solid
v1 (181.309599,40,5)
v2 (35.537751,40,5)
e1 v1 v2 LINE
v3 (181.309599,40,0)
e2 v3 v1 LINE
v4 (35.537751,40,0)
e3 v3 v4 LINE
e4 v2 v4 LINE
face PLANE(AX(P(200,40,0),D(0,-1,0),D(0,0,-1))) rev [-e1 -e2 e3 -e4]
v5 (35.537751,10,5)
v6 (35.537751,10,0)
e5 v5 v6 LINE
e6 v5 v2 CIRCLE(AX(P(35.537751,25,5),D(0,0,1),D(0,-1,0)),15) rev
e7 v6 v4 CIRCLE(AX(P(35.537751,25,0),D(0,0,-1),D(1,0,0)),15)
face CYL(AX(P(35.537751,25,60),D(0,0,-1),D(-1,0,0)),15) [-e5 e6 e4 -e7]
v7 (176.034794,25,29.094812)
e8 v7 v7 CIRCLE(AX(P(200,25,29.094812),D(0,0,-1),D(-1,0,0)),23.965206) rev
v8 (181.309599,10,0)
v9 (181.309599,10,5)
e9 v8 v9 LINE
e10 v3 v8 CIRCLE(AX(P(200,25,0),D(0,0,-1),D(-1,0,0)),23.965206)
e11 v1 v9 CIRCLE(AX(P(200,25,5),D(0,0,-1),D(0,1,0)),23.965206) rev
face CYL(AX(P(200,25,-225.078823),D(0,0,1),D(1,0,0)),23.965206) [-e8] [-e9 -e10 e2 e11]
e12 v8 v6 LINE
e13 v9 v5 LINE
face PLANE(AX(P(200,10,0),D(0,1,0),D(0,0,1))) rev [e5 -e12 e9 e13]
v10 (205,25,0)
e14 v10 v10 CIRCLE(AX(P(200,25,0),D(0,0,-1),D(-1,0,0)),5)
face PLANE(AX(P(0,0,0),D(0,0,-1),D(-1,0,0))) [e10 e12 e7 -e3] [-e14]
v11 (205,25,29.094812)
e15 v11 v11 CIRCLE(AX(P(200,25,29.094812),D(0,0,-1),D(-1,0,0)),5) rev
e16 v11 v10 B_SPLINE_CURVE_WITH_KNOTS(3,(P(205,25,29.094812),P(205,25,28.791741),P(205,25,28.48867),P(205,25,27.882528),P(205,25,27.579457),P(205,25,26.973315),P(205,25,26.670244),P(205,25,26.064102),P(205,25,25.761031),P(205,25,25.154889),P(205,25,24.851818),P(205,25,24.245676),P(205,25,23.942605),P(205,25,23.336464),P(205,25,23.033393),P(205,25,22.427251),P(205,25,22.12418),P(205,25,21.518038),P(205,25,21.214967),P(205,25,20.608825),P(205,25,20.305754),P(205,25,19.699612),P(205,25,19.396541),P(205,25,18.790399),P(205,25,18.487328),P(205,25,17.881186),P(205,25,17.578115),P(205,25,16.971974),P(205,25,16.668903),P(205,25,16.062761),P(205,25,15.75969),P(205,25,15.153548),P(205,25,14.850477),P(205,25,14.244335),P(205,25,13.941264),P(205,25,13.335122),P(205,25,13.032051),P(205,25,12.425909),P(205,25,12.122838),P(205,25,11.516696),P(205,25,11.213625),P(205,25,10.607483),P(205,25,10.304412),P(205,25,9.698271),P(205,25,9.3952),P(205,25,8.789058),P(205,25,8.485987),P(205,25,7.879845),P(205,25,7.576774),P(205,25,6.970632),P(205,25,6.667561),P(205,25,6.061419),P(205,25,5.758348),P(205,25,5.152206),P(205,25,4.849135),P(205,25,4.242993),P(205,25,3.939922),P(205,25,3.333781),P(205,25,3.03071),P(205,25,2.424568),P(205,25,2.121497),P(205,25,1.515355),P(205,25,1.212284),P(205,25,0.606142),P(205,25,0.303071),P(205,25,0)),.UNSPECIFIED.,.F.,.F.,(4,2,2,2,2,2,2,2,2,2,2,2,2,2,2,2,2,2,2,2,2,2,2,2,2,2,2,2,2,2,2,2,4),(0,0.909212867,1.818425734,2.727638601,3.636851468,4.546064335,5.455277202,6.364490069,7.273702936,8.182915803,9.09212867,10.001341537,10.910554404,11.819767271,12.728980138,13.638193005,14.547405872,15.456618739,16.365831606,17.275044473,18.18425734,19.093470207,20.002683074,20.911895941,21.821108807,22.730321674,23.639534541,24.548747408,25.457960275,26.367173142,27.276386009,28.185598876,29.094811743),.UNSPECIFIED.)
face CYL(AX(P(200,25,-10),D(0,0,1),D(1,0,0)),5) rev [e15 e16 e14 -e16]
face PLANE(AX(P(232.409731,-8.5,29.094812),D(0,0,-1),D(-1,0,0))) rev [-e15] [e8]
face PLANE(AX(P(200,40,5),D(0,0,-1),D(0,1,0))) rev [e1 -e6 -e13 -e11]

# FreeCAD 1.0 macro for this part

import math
import FreeCAD as App
import Part
import Sketcher

V = App.Vector

doc = App.newDocument("Part")
body = doc.addObject("PartDesign::Body", "Body")

# Sketch on XY plane
sketch1 = body.newObject("Sketcher::SketchObject", "Sketch")
sketch1.AttachmentSupport = (doc.getObject("XY_Plane"), [""])
sketch1.MapMode = "FlatFace"
sketch1.addGeometry([
    Part.LineSegment(V(0, 50, 0), V(0, 0, 0)),
    Part.LineSegment(V(0, 0, 0), V(50, 0, 0)),
    Part.LineSegment(V(50, 0, 0), V(50, 50, 0)),
    Part.LineSegment(V(50, 50, 0), V(0, 50, 0)),
], False)
sketch1.addConstraint([
    Sketcher.Constraint("Coincident", 0, 2, 1, 1),
    Sketcher.Constraint("Coincident", 1, 2, 2, 1),
    Sketcher.Constraint("Coincident", 2, 2, 3, 1),
    Sketcher.Constraint("Coincident", 3, 2, 0, 1),
    Sketcher.Constraint("Vertical", 0),
    Sketcher.Constraint("Horizontal", 1),
    Sketcher.Constraint("Vertical", 2),
    Sketcher.Constraint("Horizontal", 3),
    Sketcher.Constraint("Coincident", 0, 2, -1, 1),
    Sketcher.Constraint("Equal", 3, 0),
    Sketcher.Constraint("DistanceX", 1, 1, 1, 2, 50.0),
])
pad1 = body.newObject("PartDesign::Pad", "Pad")
pad1.Profile = sketch1
pad1.Length = 50

# Sketch on XY plane
sketch2 = body.newObject("Sketcher::SketchObject", "Sketch001")
sketch2.AttachmentSupport = (doc.getObject("XY_Plane"), [""])
sketch2.MapMode = "FlatFace"
sketch2.AttachmentOffset = App.Placement(V(0, 0, 50), App.Rotation())
sketch2.addGeometry([
    Part.LineSegment(V(0, 40, 0), V(0, 10, 0)),
    Part.LineSegment(V(0, 10, 0), V(50, 10, 0)),
    Part.LineSegment(V(50, 10, 0), V(50, 40, 0)),
    Part.LineSegment(V(50, 40, 0), V(0, 40, 0)),
], False)
sketch2.addConstraint([
    Sketcher.Constraint("Coincident", 0, 2, 1, 1),
    Sketcher.Constraint("Coincident", 1, 2, 2, 1),
    Sketcher.Constraint("Coincident", 2, 2, 3, 1),
    Sketcher.Constraint("Coincident", 3, 2, 0, 1),
    Sketcher.Constraint("Vertical", 0),
    Sketcher.Constraint("Horizontal", 1),
    Sketcher.Constraint("Vertical", 2),
    Sketcher.Constraint("Horizontal", 3),
    Sketcher.Constraint("PointOnObject", 0, 2, -2),
    Sketcher.Constraint("DistanceX", 1, 1, 1, 2, 50.0),
    Sketcher.Constraint("DistanceY", 0, 2, 0, 1, 30.0),
    Sketcher.Constraint("DistanceY", -1, 1, 0, 2, 10.0),
])
pocket1 = body.newObject("PartDesign::Pocket", "Pocket")
pocket1.Profile = sketch2
pocket1.Length = 5

# Sketch on YZ plane
sketch3 = body.newObject("Sketcher::SketchObject", "Sketch002")
sketch3.AttachmentSupport = (doc.getObject("YZ_Plane"), [""])
sketch3.MapMode = "FlatFace"
sketch3.AttachmentOffset = App.Placement(V(0, 0, 50), App.Rotation())
sketch3.addGeometry([
    Part.LineSegment(V(40, 5, 0), V(10, 5, 0)),
    Part.LineSegment(V(10, 5, 0), V(10, 0, 0)),
    Part.LineSegment(V(10, 0, 0), V(40, 0, 0)),
    Part.LineSegment(V(40, 0, 0), V(40, 5, 0)),
], False)
sketch3.addConstraint([
    Sketcher.Constraint("Coincident", 0, 2, 1, 1),
    Sketcher.Constraint("Coincident", 1, 2, 2, 1),
    Sketcher.Constraint("Coincident", 2, 2, 3, 1),
    Sketcher.Constraint("Coincident", 3, 2, 0, 1),
    Sketcher.Constraint("Horizontal", 0),
    Sketcher.Constraint("Vertical", 1),
    Sketcher.Constraint("Horizontal", 2),
    Sketcher.Constraint("Vertical", 3),
    Sketcher.Constraint("PointOnObject", 1, 2, -1),
    Sketcher.Constraint("DistanceX", 0, 2, 0, 1, 30.0),
    Sketcher.Constraint("DistanceY", 1, 2, 1, 1, 5.0),
    Sketcher.Constraint("DistanceX", -1, 1, 0, 2, 10.0),
])
pad2 = body.newObject("PartDesign::Pad", "Pad001")
pad2.Profile = sketch3
pad2.Length = 150

# Sketch on XY plane
sketch4 = body.newObject("Sketcher::SketchObject", "Sketch003")
sketch4.AttachmentSupport = (doc.getObject("XY_Plane"), [""])
sketch4.MapMode = "FlatFace"
sketch4.addGeometry(Part.Circle(V(200, 25, 0), V(0, 0, 1), 35), False)
sketch4.addConstraint([
    Sketcher.Constraint("Diameter", 0, 70.0),
    Sketcher.Constraint("DistanceX", -1, 1, 0, 3, 200.0),
    Sketcher.Constraint("DistanceY", -1, 1, 0, 3, 25.0),
])
pad3 = body.newObject("PartDesign::Pad", "Pad002")
pad3.Profile = sketch4
pad3.Length = 50

# Sketch on XY plane
sketch5 = body.newObject("Sketcher::SketchObject", "Sketch004")
sketch5.AttachmentSupport = (doc.getObject("XY_Plane"), [""])
sketch5.MapMode = "FlatFace"
sketch5.addGeometry([
    Part.LineSegment(V(261, 86, 0), V(261, -36, 0)),  # 0
    Part.LineSegment(V(261, -36, 0), V(-26, -36, 0)),  # 1
    Part.LineSegment(V(-26, -36, 0), V(-26, 86, 0)),  # 2
    Part.LineSegment(V(-26, 86, 0), V(261, 86, 0)),  # 3
    Part.LineSegment(V(247, 86, 0), V(50, 40, 0)),  # 4
    Part.LineSegment(V(50, 40, 0), V(36, 40, 0)),  # 5
    Part.ArcOfCircle(Part.Circle(V(36, 25, 0), V(0, 0, 1), 15), math.radians(90), math.radians(270)),  # 6
    Part.LineSegment(V(36, 10, 0), V(50, 10, 0)),  # 7
    Part.LineSegment(V(50, 10, 0), V(247, -30, 0)),  # 8
    Part.LineSegment(V(247, -30, 0), V(247, 86, 0)),  # 9
], False)
sketch5.addConstraint([
    Sketcher.Constraint("Coincident", 0, 2, 1, 1),
    Sketcher.Constraint("Coincident", 1, 2, 2, 1),
    Sketcher.Constraint("Coincident", 2, 2, 3, 1),
    Sketcher.Constraint("Coincident", 3, 2, 0, 1),
    Sketcher.Constraint("Coincident", 4, 2, 5, 1),
    Sketcher.Constraint("Tangent", 5, 2, 6, 1),
    Sketcher.Constraint("Tangent", 6, 2, 7, 1),
    Sketcher.Constraint("Coincident", 7, 2, 8, 1),
    Sketcher.Constraint("Coincident", 8, 2, 9, 1),
    Sketcher.Constraint("Coincident", 9, 2, 4, 1),
    Sketcher.Constraint("Vertical", 0),
    Sketcher.Constraint("Horizontal", 1),
    Sketcher.Constraint("Vertical", 2),
    Sketcher.Constraint("Horizontal", 3),
    Sketcher.Constraint("Horizontal", 5),
    Sketcher.Constraint("Horizontal", 7),
    Sketcher.Constraint("Vertical", 9),
    Sketcher.Constraint("Vertical", 4, 2, 7, 2),
    Sketcher.Constraint("Radius", 6, 15.0),
    Sketcher.Constraint("DistanceY", -1, 1, 6, 3, 25.0),
    Sketcher.Constraint("DistanceX", -1, 1, 4, 2, 50.0),
    Sketcher.Constraint("DistanceX", 1, 2, 1, 1, 287.05),
    Sketcher.Constraint("DistanceY", 0, 2, 0, 1, 122.05),
    Sketcher.Constraint("DistanceX", -1, 1, 0, 2, 261.025),
    Sketcher.Constraint("DistanceY", 0, 2, -1, 1, 36.025),
    Sketcher.Constraint("DistanceX", 5, 2, 5, 1, 14.462249),
    Sketcher.Constraint("DistanceY", 9, 1, 9, 2, 115.890808),
    Sketcher.Constraint("DistanceX", -1, 1, 8, 2, 247.49594),
    Sketcher.Constraint("Distance", 4, 202.738016),
])
pocket2 = body.newObject("PartDesign::Pocket", "Pocket001")
pocket2.Profile = sketch5
pocket2.Length = 60
pocket2.Reversed = True

# Sketch on XZ plane
sketch6 = body.newObject("Sketcher::SketchObject", "Sketch005")
sketch6.AttachmentSupport = (doc.getObject("XZ_Plane"), [""])
sketch6.MapMode = "FlatFace"
sketch6.AttachmentOffset = App.Placement(V(0, 0, -40), App.Rotation())
sketch6.addGeometry([
    Part.LineSegment(V(-4, -24, 0), V(-4, 74, 0)),  # 0
    Part.LineSegment(V(-4, 74, 0), V(126, 74, 0)),  # 1
    Part.LineSegment(V(126, 74, 0), V(50, 5, 0)),  # 2
    Part.LineSegment(V(50, 5, 0), V(21, 5, 0)),  # 3
    Part.LineSegment(V(21, 5, 0), V(21, 0, 0)),  # 4
    Part.LineSegment(V(21, 0, 0), V(246, 0, 0)),  # 5
    Part.LineSegment(V(246, 0, 0), V(246, 74, 0)),  # 6
    Part.LineSegment(V(246, 74, 0), V(259, 74, 0)),  # 7
    Part.LineSegment(V(259, 74, 0), V(259, -24, 0)),  # 8
    Part.LineSegment(V(259, -24, 0), V(-4, -24, 0)),  # 9
], False)
sketch6.addConstraint([
    Sketcher.Constraint("Coincident", 0, 2, 1, 1),
    Sketcher.Constraint("Coincident", 1, 2, 2, 1),
    Sketcher.Constraint("Coincident", 2, 2, 3, 1),
    Sketcher.Constraint("Coincident", 3, 2, 4, 1),
    Sketcher.Constraint("Coincident", 4, 2, 5, 1),
    Sketcher.Constraint("Coincident", 5, 2, 6, 1),
    Sketcher.Constraint("Coincident", 6, 2, 7, 1),
    Sketcher.Constraint("Coincident", 7, 2, 8, 1),
    Sketcher.Constraint("Coincident", 8, 2, 9, 1),
    Sketcher.Constraint("Coincident", 9, 2, 0, 1),
    Sketcher.Constraint("Vertical", 0),
    Sketcher.Constraint("Horizontal", 1),
    Sketcher.Constraint("Horizontal", 3),
    Sketcher.Constraint("Vertical", 4),
    Sketcher.Constraint("Horizontal", 5),
    Sketcher.Constraint("Vertical", 6),
    Sketcher.Constraint("Horizontal", 7),
    Sketcher.Constraint("Vertical", 8),
    Sketcher.Constraint("Horizontal", 9),
    Sketcher.Constraint("PointOnObject", 4, 2, -1),
    Sketcher.Constraint("Horizontal", 1, 2, 6, 2),
    Sketcher.Constraint("DistanceY", 4, 2, 4, 1, 5.0),
    Sketcher.Constraint("DistanceX", -1, 1, 2, 2, 50.0),
    Sketcher.Constraint("DistanceX", 9, 2, 9, 1, 262.676),
    Sketcher.Constraint("DistanceY", 0, 1, 0, 2, 98.214),
    Sketcher.Constraint("DistanceY", 6, 1, 6, 2, 74.107),
    Sketcher.Constraint("DistanceX", 0, 2, -1, 1, 3.569),
    Sketcher.Constraint("DistanceX", 1, 1, 1, 2, 129.233318),
    Sketcher.Constraint("DistanceX", 3, 2, 3, 1, 29.462249),
    Sketcher.Constraint("DistanceX", 5, 1, 5, 2, 225.43331),
])
pocket3 = body.newObject("PartDesign::Pocket", "Pocket002")
pocket3.Profile = sketch6
pocket3.Length = 60
pocket3.Reversed = True

# Sketch on XY plane
sketch7 = body.newObject("Sketcher::SketchObject", "Sketch006")
sketch7.AttachmentSupport = (doc.getObject("XY_Plane"), [""])
sketch7.MapMode = "FlatFace"
sketch7.AttachmentOffset = App.Placement(V(0, 0, 50), App.Rotation())
sketch7.addGeometry(Part.Circle(V(200, 25, 0), V(0, 0, 1), 5), False)
sketch7.addConstraint([
    Sketcher.Constraint("Diameter", 0, 10.0),
    Sketcher.Constraint("DistanceX", -1, 1, 0, 3, 200.0),
    Sketcher.Constraint("DistanceY", -1, 1, 0, 3, 25.0),
])
pocket4 = body.newObject("PartDesign::Pocket", "Pocket003")
pocket4.Profile = sketch7
pocket4.Length = 60

# Sketch on XY plane
sketch8 = body.newObject("Sketcher::SketchObject", "Sketch007")
sketch8.AttachmentSupport = (doc.getObject("XY_Plane"), [""])
sketch8.MapMode = "FlatFace"
sketch8.AttachmentOffset = App.Placement(V(0, 0, 50), App.Rotation())
sketch8.addGeometry([
    Part.LineSegment(V(-4, 84, 0), V(-4, -34, 0)),  # 0
    Part.LineSegment(V(-4, -34, 0), V(259, -34, 0)),  # 1
    Part.LineSegment(V(259, -34, 0), V(259, 84, 0)),  # 2
    Part.LineSegment(V(259, 84, 0), V(-4, 84, 0)),  # 3
    Part.Circle(V(200, 25, 0), V(0, 0, 1), 24),  # 4
], False)
sketch8.addConstraint([
    Sketcher.Constraint("Coincident", 0, 2, 1, 1),
    Sketcher.Constraint("Coincident", 1, 2, 2, 1),
    Sketcher.Constraint("Coincident", 2, 2, 3, 1),
    Sketcher.Constraint("Coincident", 3, 2, 0, 1),
    Sketcher.Constraint("Vertical", 0),
    Sketcher.Constraint("Horizontal", 1),
    Sketcher.Constraint("Vertical", 2),
    Sketcher.Constraint("Horizontal", 3),
    Sketcher.Constraint("DistanceX", -1, 1, 4, 3, 200.0),
    Sketcher.Constraint("DistanceY", -1, 1, 4, 3, 25.0),
    Sketcher.Constraint("DistanceX", 1, 1, 1, 2, 262.676),
    Sketcher.Constraint("DistanceY", 0, 2, 0, 1, 118.214),
    Sketcher.Constraint("Diameter", 4, 47.930412),
    Sketcher.Constraint("DistanceX", 0, 2, -1, 1, 3.569),
    Sketcher.Constraint("DistanceY", 0, 2, -1, 1, 34.107),
])
pocket5 = body.newObject("PartDesign::Pocket", "Pocket004")
pocket5.Profile = sketch8
pocket5.Length = 45

# Sketch on XY plane
sketch9 = body.newObject("Sketcher::SketchObject", "Sketch008")
sketch9.AttachmentSupport = (doc.getObject("XY_Plane"), [""])
sketch9.MapMode = "FlatFace"
sketch9.AttachmentOffset = App.Placement(V(0, 0, 5), App.Rotation())
sketch9.addGeometry([
    Part.LineSegment(V(-4, 84, 0), V(-4, -34, 0)),  # 0
    Part.LineSegment(V(-4, -34, 0), V(259, -34, 0)),  # 1
    Part.LineSegment(V(259, -34, 0), V(259, 84, 0)),  # 2
    Part.LineSegment(V(259, 84, 0), V(-4, 84, 0)),  # 3
    Part.LineSegment(V(17, 40, 0), V(181, 40, 0)),  # 4
    Part.ArcOfCircle(Part.Circle(V(200, 25, 0), V(0, 0, 1), 24), math.radians(-141), math.radians(141)),  # 5
    Part.LineSegment(V(181, 10, 0), V(168, 10, 0)),  # 6
    Part.LineSegment(V(168, 10, 0), V(164, 1, 0)),  # 7
    Part.LineSegment(V(164, 1, 0), V(17, 1, 0)),  # 8
    Part.LineSegment(V(17, 1, 0), V(17, 40, 0)),  # 9
], False)
sketch9.addConstraint([
    Sketcher.Constraint("Coincident", 0, 2, 1, 1),
    Sketcher.Constraint("Coincident", 1, 2, 2, 1),
    Sketcher.Constraint("Coincident", 2, 2, 3, 1),
    Sketcher.Constraint("Coincident", 3, 2, 0, 1),
    Sketcher.Constraint("Coincident", 4, 2, 5, 2),
    Sketcher.Constraint("Coincident", 5, 1, 6, 1),
    Sketcher.Constraint("Coincident", 6, 2, 7, 1),
    Sketcher.Constraint("Coincident", 7, 2, 8, 1),
    Sketcher.Constraint("Coincident", 8, 2, 9, 1),
    Sketcher.Constraint("Coincident", 9, 2, 4, 1),
    Sketcher.Constraint("Vertical", 0),
    Sketcher.Constraint("Horizontal", 1),
    Sketcher.Constraint("Vertical", 2),
    Sketcher.Constraint("Horizontal", 3),
    Sketcher.Constraint("Horizontal", 4),
    Sketcher.Constraint("Horizontal", 6),
    Sketcher.Constraint("Horizontal", 8),
    Sketcher.Constraint("Vertical", 9),
    Sketcher.Constraint("Vertical", 4, 2, 5, 1),
    Sketcher.Constraint("DistanceX", -1, 1, 5, 3, 200.0),
    Sketcher.Constraint("DistanceY", -1, 1, 5, 3, 25.0),
    Sketcher.Constraint("DistanceY", -1, 1, 4, 2, 40.0),
    Sketcher.Constraint("DistanceX", 1, 1, 1, 2, 262.676),
    Sketcher.Constraint("DistanceY", 0, 2, 0, 1, 118.214),
    Sketcher.Constraint("DistanceX", 8, 2, 8, 1, 147.526499),
    Sketcher.Constraint("DistanceX", 0, 2, -1, 1, 3.569),
    Sketcher.Constraint("DistanceY", 0, 2, -1, 1, 34.107),
    Sketcher.Constraint("Radius", 5, 23.965206),
    Sketcher.Constraint("DistanceX", 4, 1, 4, 2, 164.435036),
    Sketcher.Constraint("DistanceX", 6, 2, 6, 1, 12.932375),
    Sketcher.Constraint("DistanceY", 9, 1, 9, 2, 38.965206),
])
pocket6 = body.newObject("PartDesign::Pocket", "Pocket005")
pocket6.Profile = sketch9
pocket6.Length = 47

# Sketch on XZ plane
sketch10 = body.newObject("Sketcher::SketchObject", "Sketch009")
sketch10.AttachmentSupport = (doc.getObject("XZ_Plane"), [""])
sketch10.MapMode = "FlatFace"
sketch10.AttachmentOffset = App.Placement(V(0, 0, -40), App.Rotation())
sketch10.addGeometry([
    Part.LineSegment(V(232, 29, 0), V(165, 29, 0)),
    Part.LineSegment(V(165, 29, 0), V(165, 67, 0)),
    Part.LineSegment(V(165, 67, 0), V(236, 67, 0)),
    Part.LineSegment(V(236, 67, 0), V(232, 29, 0)),
], False)
sketch10.addConstraint([
    Sketcher.Constraint("Coincident", 0, 2, 1, 1),
    Sketcher.Constraint("Coincident", 1, 2, 2, 1),
    Sketcher.Constraint("Coincident", 2, 2, 3, 1),
    Sketcher.Constraint("Coincident", 3, 2, 0, 1),
    Sketcher.Constraint("Horizontal", 0),
    Sketcher.Constraint("Vertical", 1),
    Sketcher.Constraint("Horizontal", 2),
    Sketcher.Constraint("DistanceY", 1, 1, 1, 2, 37.927912),
    Sketcher.Constraint("DistanceX", 0, 2, 0, 1, 67.223954),
    Sketcher.Constraint("DistanceX", 2, 1, 2, 2, 70.362816),
    Sketcher.Constraint("DistanceY", -1, 1, 0, 2, 29.094812),
    Sketcher.Constraint("DistanceX", -1, 1, 3, 2, 232.409731),
])
pocket7 = body.newObject("PartDesign::Pocket", "Pocket006")
pocket7.Profile = sketch10
pocket7.Length = 97
pocket7.Midplane = True

doc.recompute()
